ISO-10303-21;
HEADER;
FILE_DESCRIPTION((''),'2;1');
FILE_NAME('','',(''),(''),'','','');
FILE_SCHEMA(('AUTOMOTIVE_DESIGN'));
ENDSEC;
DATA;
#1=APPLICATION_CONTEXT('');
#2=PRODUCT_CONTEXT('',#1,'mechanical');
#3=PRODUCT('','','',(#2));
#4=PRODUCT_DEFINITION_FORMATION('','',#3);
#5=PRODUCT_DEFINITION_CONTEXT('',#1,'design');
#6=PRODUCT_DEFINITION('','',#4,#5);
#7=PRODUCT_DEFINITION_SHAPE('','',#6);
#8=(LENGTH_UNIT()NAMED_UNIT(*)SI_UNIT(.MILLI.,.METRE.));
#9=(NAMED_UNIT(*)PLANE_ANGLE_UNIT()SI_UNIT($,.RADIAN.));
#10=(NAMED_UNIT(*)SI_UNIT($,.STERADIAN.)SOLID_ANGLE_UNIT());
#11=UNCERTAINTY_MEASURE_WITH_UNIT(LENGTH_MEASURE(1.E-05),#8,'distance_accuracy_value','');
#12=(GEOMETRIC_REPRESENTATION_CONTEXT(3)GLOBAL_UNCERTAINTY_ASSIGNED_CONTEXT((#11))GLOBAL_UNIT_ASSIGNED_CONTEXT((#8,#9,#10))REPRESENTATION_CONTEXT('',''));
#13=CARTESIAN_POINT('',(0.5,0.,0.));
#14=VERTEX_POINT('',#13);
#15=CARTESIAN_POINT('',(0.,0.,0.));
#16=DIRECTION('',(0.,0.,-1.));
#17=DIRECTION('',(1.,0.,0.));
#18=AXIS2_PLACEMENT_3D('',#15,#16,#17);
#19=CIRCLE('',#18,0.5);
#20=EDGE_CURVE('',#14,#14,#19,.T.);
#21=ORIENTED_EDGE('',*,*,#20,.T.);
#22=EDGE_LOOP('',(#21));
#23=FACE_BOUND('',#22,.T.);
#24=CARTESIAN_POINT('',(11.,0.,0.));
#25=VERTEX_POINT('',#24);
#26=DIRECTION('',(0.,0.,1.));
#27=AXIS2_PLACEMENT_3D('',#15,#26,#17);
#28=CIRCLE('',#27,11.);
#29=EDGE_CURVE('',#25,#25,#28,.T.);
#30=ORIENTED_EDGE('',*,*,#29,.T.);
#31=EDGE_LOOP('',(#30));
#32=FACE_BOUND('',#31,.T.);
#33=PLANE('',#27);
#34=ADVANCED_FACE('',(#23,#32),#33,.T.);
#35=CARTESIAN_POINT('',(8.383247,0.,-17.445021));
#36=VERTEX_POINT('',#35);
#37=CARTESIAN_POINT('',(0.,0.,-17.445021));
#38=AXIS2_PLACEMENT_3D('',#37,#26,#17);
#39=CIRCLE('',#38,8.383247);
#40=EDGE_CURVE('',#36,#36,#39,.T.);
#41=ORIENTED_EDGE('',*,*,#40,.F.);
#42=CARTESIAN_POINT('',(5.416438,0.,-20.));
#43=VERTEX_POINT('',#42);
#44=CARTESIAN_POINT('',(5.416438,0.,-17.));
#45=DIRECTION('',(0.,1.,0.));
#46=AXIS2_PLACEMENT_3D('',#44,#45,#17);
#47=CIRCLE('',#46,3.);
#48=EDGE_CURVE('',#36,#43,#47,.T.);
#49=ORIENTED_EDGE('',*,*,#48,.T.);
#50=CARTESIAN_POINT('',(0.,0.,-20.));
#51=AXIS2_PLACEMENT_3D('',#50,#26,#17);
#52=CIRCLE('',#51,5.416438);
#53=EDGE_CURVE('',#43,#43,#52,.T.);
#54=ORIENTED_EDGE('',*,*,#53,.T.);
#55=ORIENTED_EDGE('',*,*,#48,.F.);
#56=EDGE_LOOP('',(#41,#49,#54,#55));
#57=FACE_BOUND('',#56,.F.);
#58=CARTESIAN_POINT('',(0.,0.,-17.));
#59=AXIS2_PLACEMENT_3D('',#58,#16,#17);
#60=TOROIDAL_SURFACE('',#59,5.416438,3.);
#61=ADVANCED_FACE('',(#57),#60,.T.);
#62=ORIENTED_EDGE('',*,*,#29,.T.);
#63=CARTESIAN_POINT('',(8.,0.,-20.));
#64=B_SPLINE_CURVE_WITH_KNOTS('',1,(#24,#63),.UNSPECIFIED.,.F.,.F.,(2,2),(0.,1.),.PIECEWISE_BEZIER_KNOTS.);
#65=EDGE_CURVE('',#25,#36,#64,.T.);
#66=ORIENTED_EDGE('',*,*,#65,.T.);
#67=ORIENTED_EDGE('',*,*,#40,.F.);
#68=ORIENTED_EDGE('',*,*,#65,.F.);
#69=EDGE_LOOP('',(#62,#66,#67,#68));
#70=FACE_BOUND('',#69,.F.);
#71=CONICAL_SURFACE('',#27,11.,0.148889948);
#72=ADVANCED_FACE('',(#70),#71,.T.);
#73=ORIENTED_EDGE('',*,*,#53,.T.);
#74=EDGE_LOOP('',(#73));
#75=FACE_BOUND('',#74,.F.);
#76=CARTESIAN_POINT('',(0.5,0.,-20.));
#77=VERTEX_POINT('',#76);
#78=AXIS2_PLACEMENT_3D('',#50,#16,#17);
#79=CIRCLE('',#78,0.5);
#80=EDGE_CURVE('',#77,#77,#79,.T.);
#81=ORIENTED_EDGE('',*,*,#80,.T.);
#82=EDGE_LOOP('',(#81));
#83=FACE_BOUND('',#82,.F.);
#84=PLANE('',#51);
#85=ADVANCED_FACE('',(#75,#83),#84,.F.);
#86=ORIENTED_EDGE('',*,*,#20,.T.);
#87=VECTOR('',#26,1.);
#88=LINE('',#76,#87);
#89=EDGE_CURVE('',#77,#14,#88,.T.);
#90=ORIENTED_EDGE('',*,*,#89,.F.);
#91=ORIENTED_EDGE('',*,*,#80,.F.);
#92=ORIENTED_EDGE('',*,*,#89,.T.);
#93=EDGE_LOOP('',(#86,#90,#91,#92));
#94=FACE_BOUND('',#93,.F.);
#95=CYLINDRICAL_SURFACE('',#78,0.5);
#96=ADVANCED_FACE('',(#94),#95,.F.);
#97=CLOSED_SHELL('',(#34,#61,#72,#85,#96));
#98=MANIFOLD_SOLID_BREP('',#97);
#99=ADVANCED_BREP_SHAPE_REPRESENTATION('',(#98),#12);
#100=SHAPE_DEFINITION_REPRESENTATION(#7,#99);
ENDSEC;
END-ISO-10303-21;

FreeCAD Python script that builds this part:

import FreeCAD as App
import Part
import Sketcher

V = App.Vector


def edges_at(feature, points):
    """Names of the edges that pass closest to the given points."""
    edges = feature.Shape.Edges
    near = lambda p: min(range(len(edges)), key=lambda i: edges[i].distToShape(Part.Vertex(*p))[0])
    return sorted({f"Edge{near(p) + 1}" for p in points})

doc = App.newDocument("Part")
params = doc.addObject("Spreadsheet::Sheet", "Params")
for row, (alias, value) in enumerate([
    ("sketch1_diameter", "22 mm"),
    ("sketch2_diameter", "16 mm"),
    ("fillet_radius", "3 mm"),
    ("sketch3_diameter", "1 mm"),
    ("pocket1_length", "20 mm"),
], start=1):
    params.set(f"A{row}", alias)
    params.set(f"B{row}", "=" + value)
    params.setAlias(f"B{row}", alias)

body = doc.addObject("PartDesign::Body", "Body")

# Sketch on XY plane
sketch1 = body.newObject("Sketcher::SketchObject", "Sketch")
sketch1.AttachmentSupport = (doc.getObject("XY_Plane"), [""])
sketch1.MapMode = "FlatFace"
sketch1.addGeometry(Part.Circle(V(0, 0, 0), V(0, 0, 1), 11), False)
sketch1.addConstraint([
    Sketcher.Constraint("Coincident", 0, 3, -1, 1),
    Sketcher.Constraint("Diameter", 0, 22.0),
])
sketch1.setExpression("Constraints[1]", "Params.sketch1_diameter")

# Sketch on XY plane
sketch2 = body.newObject("Sketcher::SketchObject", "Sketch001")
sketch2.AttachmentSupport = (doc.getObject("XY_Plane"), [""])
sketch2.MapMode = "FlatFace"
sketch2.AttachmentOffset = App.Placement(V(0, 0, -20), App.Rotation())
sketch2.addGeometry(Part.Circle(V(0, 0, 0), V(0, 0, 1), 8), False)
sketch2.addConstraint([
    Sketcher.Constraint("Coincident", 0, 3, -1, 1),
    Sketcher.Constraint("Diameter", 0, 16.0),
])
sketch2.setExpression("Constraints[1]", "Params.sketch2_diameter")

additiveloft = body.newObject("PartDesign::AdditiveLoft", "AdditiveLoft")
additiveloft.Profile = sketch1
additiveloft.Sections = [sketch2]
doc.recompute()

fillet = body.newObject("PartDesign::Fillet", "Fillet")
fillet.Base = (additiveloft, edges_at(additiveloft, [(-8, 0, -20)]))
fillet.setExpression("Radius", "Params.fillet_radius")

# Sketch on XY plane
sketch3 = body.newObject("Sketcher::SketchObject", "Sketch002")
sketch3.AttachmentSupport = (doc.getObject("XY_Plane"), [""])
sketch3.MapMode = "FlatFace"
sketch3.AttachmentOffset = App.Placement(V(0, 0, -20), App.Rotation())
sketch3.addGeometry(Part.Circle(V(0, 0, 0), V(0, 0, 1), 0.5), False)
sketch3.addConstraint([
    Sketcher.Constraint("Coincident", 0, 3, -1, 1),
    Sketcher.Constraint("Diameter", 0, 1.0),
])
sketch3.setExpression("Constraints[1]", "Params.sketch3_diameter")
pocket1 = body.newObject("PartDesign::Pocket", "Pocket")
pocket1.Profile = sketch3
pocket1.setExpression("Length", "Params.pocket1_length")
pocket1.Reversed = True

doc.recompute()
